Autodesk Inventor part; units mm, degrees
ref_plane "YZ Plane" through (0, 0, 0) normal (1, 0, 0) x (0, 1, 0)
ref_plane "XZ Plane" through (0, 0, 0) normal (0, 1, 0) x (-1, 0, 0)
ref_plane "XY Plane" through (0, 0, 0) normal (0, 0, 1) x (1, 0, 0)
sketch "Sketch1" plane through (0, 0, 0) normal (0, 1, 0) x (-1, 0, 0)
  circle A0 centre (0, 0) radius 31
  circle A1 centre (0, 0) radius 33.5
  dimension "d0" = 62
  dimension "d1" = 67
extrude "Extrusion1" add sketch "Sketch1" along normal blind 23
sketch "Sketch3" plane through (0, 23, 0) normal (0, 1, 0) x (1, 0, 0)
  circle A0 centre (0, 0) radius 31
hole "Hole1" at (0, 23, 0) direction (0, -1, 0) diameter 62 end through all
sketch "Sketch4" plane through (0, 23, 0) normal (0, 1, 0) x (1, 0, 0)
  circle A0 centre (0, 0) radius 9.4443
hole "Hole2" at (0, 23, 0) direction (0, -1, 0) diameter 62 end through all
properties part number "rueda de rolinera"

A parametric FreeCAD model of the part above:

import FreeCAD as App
import Part
import Sketcher

V = App.Vector
Q = App.Units.Quantity

doc = App.newDocument("Part")
body = doc.addObject("PartDesign::Body", "Body")

# Sketch on XZ plane
sketch1 = body.newObject("Sketcher::SketchObject", "Sketch")
sketch1.AttachmentSupport = (doc.getObject("XZ_Plane"), [""])
sketch1.MapMode = "FlatFace"
sketch1.addGeometry([
    Part.Circle(V(0, 0, 0), V(0, 0, 1), 34),
    Part.Circle(V(0, 0, 0), V(0, 0, 1), 31),
], False)
sketch1.addConstraint([
    Sketcher.Constraint("Coincident", 0, 3, -1, 1),
    Sketcher.Constraint("Coincident", 1, 3, -1, 1),
    Sketcher.Constraint("Diameter", 0, Q("67 mm")),
    Sketcher.Constraint("Diameter", 1, Q("62 mm")),
])
pad1 = body.newObject("PartDesign::Pad", "Pad")
pad1.Profile = sketch1
pad1.Length = 23
pad1.Reversed = True

# Sketch on XZ plane
sketch2 = body.newObject("Sketcher::SketchObject", "Sketch001")
sketch2.AttachmentSupport = (doc.getObject("XZ_Plane"), [""])
sketch2.MapMode = "FlatFace"
sketch2.AttachmentOffset = App.Placement(V(0, 0, -23), App.Rotation())
sketch2.addGeometry(Part.Circle(V(0, 0, 0), V(0, 0, 1), 31), False)
sketch2.addConstraint([
    Sketcher.Constraint("Coincident", 0, 3, -1, 1),
    Sketcher.Constraint("Diameter", 0, Q("62 mm")),
])
doc.recompute()
hole = body.newObject("PartDesign::Hole", "Hole")
hole.Profile = sketch2
hole.ThreadType = "None"
hole.Diameter = 62
hole.DepthType = "ThroughAll"
hole.Reversed = True

# Sketch on XZ plane
sketch3 = body.newObject("Sketcher::SketchObject", "Sketch002")
sketch3.AttachmentSupport = (doc.getObject("XZ_Plane"), [""])
sketch3.MapMode = "FlatFace"
sketch3.AttachmentOffset = App.Placement(V(0, 0, -23), App.Rotation())
sketch3.addGeometry(Part.Circle(V(0, 0, 0), V(0, 0, 1), 31), False)
sketch3.addConstraint([
    Sketcher.Constraint("Coincident", 0, 3, -1, 1),
    Sketcher.Constraint("Diameter", 0, Q("62 mm")),
])
doc.recompute()
hole2 = body.newObject("PartDesign::Hole", "Hole001")
hole2.Profile = sketch3
hole2.ThreadType = "None"
hole2.Diameter = 62
hole2.DepthType = "ThroughAll"
hole2.Reversed = True

doc.recompute()
